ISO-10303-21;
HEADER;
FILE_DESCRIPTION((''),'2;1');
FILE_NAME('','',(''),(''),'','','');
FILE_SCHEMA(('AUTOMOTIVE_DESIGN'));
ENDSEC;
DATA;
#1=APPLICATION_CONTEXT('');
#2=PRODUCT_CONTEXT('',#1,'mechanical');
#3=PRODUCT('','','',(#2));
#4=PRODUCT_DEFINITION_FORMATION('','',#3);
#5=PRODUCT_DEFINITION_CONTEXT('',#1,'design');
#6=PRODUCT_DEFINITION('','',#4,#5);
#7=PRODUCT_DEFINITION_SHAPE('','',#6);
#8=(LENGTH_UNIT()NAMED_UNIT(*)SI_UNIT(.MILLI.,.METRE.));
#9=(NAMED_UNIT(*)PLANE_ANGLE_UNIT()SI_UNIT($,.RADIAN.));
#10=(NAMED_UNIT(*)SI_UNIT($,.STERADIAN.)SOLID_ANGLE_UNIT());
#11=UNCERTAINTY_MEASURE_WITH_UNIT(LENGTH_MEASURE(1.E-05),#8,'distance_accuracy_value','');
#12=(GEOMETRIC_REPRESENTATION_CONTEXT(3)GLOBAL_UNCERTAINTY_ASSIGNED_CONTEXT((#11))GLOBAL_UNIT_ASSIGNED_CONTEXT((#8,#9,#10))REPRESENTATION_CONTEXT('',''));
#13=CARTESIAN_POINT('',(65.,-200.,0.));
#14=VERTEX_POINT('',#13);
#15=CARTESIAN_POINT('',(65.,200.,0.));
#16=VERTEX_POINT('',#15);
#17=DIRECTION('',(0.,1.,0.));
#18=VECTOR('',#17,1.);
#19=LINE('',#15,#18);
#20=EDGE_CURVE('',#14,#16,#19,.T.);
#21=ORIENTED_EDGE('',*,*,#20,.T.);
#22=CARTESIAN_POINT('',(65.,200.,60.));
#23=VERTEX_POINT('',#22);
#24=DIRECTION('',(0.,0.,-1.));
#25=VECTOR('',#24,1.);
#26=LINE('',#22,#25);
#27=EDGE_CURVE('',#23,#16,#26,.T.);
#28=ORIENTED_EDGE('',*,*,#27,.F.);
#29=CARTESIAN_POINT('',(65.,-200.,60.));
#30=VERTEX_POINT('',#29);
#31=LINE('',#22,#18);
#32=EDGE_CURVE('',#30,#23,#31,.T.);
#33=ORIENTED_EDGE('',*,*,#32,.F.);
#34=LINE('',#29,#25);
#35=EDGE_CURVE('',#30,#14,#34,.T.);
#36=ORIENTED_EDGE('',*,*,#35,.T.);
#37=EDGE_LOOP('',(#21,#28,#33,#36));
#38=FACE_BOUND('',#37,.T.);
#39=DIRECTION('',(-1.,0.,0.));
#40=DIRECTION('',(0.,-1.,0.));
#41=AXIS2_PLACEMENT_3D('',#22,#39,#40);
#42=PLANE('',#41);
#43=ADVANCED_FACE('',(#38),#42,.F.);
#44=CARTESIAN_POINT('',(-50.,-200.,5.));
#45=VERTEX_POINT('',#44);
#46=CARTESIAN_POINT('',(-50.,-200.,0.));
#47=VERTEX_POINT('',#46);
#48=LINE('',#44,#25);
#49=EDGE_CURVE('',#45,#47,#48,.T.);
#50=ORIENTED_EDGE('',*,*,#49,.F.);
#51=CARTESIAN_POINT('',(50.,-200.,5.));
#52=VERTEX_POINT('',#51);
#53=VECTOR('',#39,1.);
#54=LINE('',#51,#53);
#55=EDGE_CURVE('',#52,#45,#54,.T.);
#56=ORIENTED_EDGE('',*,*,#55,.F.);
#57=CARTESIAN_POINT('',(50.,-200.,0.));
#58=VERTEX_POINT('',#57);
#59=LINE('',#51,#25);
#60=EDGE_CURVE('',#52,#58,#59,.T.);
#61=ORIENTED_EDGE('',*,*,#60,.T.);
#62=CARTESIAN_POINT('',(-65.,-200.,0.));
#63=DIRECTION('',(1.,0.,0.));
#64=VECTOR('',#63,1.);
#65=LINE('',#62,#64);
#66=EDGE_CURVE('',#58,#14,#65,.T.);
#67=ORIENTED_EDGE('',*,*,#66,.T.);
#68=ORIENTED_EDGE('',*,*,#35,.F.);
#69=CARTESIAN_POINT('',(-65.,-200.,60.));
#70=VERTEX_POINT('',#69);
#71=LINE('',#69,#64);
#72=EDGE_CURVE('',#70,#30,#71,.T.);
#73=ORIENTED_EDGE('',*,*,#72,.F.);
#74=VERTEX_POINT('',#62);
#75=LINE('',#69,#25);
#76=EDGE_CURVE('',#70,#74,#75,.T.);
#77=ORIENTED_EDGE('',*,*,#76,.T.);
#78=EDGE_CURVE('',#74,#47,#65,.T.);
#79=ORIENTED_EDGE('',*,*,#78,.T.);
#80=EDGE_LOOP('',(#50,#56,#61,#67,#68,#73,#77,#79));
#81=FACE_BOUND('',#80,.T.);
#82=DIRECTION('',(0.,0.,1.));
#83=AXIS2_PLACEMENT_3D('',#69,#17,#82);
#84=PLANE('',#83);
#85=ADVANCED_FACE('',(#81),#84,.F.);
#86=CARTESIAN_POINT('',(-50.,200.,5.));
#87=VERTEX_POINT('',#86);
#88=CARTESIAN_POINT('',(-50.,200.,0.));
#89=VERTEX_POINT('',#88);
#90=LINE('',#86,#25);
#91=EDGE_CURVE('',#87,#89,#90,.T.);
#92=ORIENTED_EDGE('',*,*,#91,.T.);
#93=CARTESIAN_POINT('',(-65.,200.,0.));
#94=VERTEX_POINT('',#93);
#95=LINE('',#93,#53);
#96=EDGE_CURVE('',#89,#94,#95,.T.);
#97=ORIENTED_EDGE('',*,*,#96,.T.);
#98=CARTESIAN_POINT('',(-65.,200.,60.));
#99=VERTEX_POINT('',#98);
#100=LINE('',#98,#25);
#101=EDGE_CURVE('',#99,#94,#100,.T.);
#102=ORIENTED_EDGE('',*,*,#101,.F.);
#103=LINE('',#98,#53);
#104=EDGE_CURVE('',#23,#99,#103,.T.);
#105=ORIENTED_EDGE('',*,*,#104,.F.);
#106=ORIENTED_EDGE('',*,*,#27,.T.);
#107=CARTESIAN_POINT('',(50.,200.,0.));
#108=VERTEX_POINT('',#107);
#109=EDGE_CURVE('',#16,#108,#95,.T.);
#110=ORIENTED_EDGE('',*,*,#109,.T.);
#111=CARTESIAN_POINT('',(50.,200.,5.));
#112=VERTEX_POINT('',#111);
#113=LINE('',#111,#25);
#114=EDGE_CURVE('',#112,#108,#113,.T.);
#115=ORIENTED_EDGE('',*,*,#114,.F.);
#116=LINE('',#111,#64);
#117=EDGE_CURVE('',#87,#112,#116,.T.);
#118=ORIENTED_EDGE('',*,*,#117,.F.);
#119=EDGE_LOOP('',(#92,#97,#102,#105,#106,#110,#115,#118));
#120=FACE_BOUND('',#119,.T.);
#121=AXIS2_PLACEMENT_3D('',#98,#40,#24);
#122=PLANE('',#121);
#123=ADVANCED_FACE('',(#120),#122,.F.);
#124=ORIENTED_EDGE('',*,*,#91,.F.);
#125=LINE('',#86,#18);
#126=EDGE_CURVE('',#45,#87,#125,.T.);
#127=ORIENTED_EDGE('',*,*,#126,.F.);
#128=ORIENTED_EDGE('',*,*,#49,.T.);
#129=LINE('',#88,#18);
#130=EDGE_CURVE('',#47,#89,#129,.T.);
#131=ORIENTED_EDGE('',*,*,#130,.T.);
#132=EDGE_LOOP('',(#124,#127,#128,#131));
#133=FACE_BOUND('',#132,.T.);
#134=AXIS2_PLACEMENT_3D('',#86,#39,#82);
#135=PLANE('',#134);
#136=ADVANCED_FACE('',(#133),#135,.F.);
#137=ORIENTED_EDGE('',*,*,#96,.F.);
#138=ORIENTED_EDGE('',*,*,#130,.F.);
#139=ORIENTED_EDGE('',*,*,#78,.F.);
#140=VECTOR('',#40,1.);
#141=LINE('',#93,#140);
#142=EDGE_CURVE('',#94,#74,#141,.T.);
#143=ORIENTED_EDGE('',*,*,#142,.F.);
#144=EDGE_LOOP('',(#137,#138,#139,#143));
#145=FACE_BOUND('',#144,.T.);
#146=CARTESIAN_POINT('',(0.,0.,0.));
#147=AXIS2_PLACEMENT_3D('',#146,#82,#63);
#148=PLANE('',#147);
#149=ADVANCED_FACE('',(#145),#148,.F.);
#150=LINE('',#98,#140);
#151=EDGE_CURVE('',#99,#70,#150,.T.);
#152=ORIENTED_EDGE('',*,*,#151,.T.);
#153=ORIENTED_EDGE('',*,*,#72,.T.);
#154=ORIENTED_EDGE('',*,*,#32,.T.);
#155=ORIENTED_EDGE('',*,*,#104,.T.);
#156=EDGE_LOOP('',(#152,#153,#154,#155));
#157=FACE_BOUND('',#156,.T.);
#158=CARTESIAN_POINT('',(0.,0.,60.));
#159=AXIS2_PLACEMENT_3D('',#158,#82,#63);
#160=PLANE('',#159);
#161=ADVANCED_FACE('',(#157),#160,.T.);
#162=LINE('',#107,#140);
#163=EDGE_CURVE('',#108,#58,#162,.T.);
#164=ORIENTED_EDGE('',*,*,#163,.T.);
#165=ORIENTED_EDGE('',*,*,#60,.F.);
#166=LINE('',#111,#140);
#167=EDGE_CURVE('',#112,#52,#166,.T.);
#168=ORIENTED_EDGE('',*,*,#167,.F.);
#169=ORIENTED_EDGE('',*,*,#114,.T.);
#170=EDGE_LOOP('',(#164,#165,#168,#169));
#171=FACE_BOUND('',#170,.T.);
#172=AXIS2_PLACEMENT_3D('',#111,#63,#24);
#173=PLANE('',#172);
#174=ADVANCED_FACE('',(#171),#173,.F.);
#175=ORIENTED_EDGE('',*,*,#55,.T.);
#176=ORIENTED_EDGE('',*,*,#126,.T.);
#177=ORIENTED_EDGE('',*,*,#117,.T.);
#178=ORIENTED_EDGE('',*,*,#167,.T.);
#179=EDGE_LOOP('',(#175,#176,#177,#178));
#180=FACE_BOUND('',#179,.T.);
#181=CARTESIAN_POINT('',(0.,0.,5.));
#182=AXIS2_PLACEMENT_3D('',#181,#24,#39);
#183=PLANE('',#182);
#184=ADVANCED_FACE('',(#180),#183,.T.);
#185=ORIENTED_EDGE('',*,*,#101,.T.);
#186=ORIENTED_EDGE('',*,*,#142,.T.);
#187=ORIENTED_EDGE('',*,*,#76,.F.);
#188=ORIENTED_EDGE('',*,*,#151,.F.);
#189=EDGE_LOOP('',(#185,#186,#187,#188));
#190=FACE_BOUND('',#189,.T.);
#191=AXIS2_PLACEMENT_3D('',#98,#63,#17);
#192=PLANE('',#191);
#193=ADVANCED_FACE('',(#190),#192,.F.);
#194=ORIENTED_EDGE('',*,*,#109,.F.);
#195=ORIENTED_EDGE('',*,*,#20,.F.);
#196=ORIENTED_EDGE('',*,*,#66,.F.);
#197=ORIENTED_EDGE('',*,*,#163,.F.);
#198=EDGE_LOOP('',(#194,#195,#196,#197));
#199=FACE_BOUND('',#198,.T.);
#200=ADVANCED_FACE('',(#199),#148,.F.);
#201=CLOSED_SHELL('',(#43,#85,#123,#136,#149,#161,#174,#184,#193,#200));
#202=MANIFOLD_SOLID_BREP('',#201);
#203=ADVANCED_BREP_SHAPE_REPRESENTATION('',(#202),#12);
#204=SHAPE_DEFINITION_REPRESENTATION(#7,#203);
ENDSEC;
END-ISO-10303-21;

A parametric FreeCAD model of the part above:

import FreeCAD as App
import Part
import Sketcher

V = App.Vector

doc = App.newDocument("Part")
body = doc.addObject("PartDesign::Body", "Body")

sketch1 = body.newObject("Sketcher::SketchObject", "Sketch")
sketch1.AttachmentSupport = (doc.getObject("XY_Plane"), [""])
sketch1.MapMode = "FlatFace"
sketch1.addGeometry([
    Part.LineSegment(V(-65, 200, 0), V(-65, -200, 0)),
    Part.LineSegment(V(-65, -200, 0), V(65, -200, 0)),
    Part.LineSegment(V(65, -200, 0), V(65, 200, 0)),
    Part.LineSegment(V(65, 200, 0), V(-65, 200, 0)),
], False)
sketch1.addConstraint([
    Sketcher.Constraint("Coincident", 0, 2, 1, 1),
    Sketcher.Constraint("Coincident", 1, 2, 2, 1),
    Sketcher.Constraint("Coincident", 2, 2, 3, 1),
    Sketcher.Constraint("Coincident", 3, 2, 0, 1),
    Sketcher.Constraint("Vertical", 0),
    Sketcher.Constraint("Horizontal", 1),
    Sketcher.Constraint("Vertical", 2),
    Sketcher.Constraint("Horizontal", 3),
    Sketcher.Constraint("Symmetric", 0, 2, 2, 2, -1, 1),
    Sketcher.Constraint("DistanceX", 1, 1, 1, 2, 130.0),
    Sketcher.Constraint("DistanceY", 0, 2, 0, 1, 400.0),
])
pad1 = body.newObject("PartDesign::Pad", "Pad")
pad1.Profile = sketch1
pad1.Length = 60

sketch2 = body.newObject("Sketcher::SketchObject", "Sketch001")
sketch2.AttachmentSupport = (doc.getObject("XY_Plane"), [""])
sketch2.MapMode = "FlatFace"
sketch2.addGeometry([
    Part.LineSegment(V(50, 200, 0), V(50, -200, 0)),
    Part.LineSegment(V(50, -200, 0), V(-50, -200, 0)),
    Part.LineSegment(V(-50, -200, 0), V(-50, 200, 0)),
    Part.LineSegment(V(-50, 200, 0), V(50, 200, 0)),
], False)
sketch2.addConstraint([
    Sketcher.Constraint("Coincident", 0, 2, 1, 1),
    Sketcher.Constraint("Coincident", 1, 2, 2, 1),
    Sketcher.Constraint("Coincident", 2, 2, 3, 1),
    Sketcher.Constraint("Coincident", 3, 2, 0, 1),
    Sketcher.Constraint("Vertical", 0),
    Sketcher.Constraint("Horizontal", 1),
    Sketcher.Constraint("Vertical", 2),
    Sketcher.Constraint("Horizontal", 3),
    Sketcher.Constraint("Symmetric", 0, 2, 2, 2, -1, 1),
    Sketcher.Constraint("DistanceX", 1, 2, 1, 1, 100.0),
    Sketcher.Constraint("DistanceY", 0, 2, 0, 1, 400.0),
])
pocket1 = body.newObject("PartDesign::Pocket", "Pocket")
pocket1.Profile = sketch2
pocket1.Length = 5
pocket1.Reversed = True

doc.recompute()
